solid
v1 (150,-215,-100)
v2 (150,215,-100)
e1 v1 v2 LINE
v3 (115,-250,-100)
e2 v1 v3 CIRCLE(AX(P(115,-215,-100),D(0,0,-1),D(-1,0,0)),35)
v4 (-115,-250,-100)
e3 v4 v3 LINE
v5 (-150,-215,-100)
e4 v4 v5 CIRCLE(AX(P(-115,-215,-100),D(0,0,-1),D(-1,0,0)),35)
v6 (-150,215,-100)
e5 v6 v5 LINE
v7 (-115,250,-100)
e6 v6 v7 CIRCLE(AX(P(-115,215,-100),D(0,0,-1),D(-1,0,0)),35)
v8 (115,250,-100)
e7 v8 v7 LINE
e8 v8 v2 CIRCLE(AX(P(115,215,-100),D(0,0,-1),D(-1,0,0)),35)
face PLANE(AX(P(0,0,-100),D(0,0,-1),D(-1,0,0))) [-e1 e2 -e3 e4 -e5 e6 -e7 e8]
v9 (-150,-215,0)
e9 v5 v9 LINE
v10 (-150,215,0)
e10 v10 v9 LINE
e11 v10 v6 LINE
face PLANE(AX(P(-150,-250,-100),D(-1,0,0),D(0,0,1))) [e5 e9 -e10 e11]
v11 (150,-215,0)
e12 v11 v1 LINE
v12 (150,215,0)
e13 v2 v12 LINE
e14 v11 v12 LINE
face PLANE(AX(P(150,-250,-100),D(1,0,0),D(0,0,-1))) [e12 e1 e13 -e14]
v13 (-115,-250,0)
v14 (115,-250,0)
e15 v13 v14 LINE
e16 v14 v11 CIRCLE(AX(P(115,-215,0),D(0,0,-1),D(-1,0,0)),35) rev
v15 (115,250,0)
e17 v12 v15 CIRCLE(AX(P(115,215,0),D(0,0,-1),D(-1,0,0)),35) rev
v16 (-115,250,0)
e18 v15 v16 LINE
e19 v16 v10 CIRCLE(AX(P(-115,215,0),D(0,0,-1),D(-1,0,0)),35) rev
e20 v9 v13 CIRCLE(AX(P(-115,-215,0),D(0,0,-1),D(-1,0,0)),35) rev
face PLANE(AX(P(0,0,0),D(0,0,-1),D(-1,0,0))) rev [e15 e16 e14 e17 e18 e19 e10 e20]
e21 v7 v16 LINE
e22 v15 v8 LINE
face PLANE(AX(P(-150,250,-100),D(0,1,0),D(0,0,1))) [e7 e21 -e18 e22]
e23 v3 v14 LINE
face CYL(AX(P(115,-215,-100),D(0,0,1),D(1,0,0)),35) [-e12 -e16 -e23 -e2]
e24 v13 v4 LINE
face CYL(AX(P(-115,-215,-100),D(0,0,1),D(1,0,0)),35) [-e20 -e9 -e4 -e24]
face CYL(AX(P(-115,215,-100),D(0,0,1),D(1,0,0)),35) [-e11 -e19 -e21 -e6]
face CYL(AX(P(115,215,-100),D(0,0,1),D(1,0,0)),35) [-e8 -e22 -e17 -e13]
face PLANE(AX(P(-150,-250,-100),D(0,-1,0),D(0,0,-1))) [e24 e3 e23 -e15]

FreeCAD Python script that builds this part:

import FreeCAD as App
import Part
import Sketcher

V = App.Vector


def edges_at(feature, points):
    """Names of the edges that pass closest to the given points."""
    edges = feature.Shape.Edges
    near = lambda p: min(range(len(edges)), key=lambda i: edges[i].distToShape(Part.Vertex(*p))[0])
    return sorted({f"Edge{near(p) + 1}" for p in points})


def add_polygon(sketch, points):
    """Adds a closed chain of lines whose ends are joined by coincident constraints."""
    first, n = sketch.GeometryCount, len(points)
    for a, b in zip(points, points[1:] + points[:1]):
        sketch.addGeometry(Part.LineSegment(App.Vector(*a, 0), App.Vector(*b, 0)), False)
    for i in range(n):
        sketch.addConstraint(Sketcher.Constraint("Coincident", first + i, 2, first + (i + 1) % n, 1))

doc = App.newDocument("Part")
body = doc.addObject("PartDesign::Body", "Body")

sketch1 = doc.addObject("Sketcher::SketchObject", "Sketch")
body.addObject(sketch1)
sketch1.AttachmentSupport = (doc.XY_Plane, [""])
sketch1.MapMode = "FlatFace"
add_polygon(sketch1, [(-150, 250), (-150, -250), (150, -250), (150, 250)])
sketch1.addConstraint([
    Sketcher.Constraint("Vertical", 0),
    Sketcher.Constraint("Horizontal", 1),
    Sketcher.Constraint("Vertical", 2),
    Sketcher.Constraint("Horizontal", 3),
    Sketcher.Constraint("Symmetric", 0, 2, 2, 2, -1, 1),
    Sketcher.Constraint("DistanceX", 1, 1, 1, 2, 300.0),
    Sketcher.Constraint("DistanceY", 0, 2, 0, 1, 500.0),
])
pad1 = doc.addObject("PartDesign::Pad", "Pad")
body.addObject(pad1)
pad1.Profile = sketch1
pad1.Length = 100
pad1.Reversed = True
doc.recompute()

fillet = doc.addObject("PartDesign::Fillet", "Fillet")
body.addObject(fillet)
fillet.Base = (pad1, edges_at(pad1, [
    (150, -250, -50),
    (-150, -250, -50),
    (-150, 250, -50),
    (150, 250, -50),
]))
fillet.Radius = 35

doc.recompute()
